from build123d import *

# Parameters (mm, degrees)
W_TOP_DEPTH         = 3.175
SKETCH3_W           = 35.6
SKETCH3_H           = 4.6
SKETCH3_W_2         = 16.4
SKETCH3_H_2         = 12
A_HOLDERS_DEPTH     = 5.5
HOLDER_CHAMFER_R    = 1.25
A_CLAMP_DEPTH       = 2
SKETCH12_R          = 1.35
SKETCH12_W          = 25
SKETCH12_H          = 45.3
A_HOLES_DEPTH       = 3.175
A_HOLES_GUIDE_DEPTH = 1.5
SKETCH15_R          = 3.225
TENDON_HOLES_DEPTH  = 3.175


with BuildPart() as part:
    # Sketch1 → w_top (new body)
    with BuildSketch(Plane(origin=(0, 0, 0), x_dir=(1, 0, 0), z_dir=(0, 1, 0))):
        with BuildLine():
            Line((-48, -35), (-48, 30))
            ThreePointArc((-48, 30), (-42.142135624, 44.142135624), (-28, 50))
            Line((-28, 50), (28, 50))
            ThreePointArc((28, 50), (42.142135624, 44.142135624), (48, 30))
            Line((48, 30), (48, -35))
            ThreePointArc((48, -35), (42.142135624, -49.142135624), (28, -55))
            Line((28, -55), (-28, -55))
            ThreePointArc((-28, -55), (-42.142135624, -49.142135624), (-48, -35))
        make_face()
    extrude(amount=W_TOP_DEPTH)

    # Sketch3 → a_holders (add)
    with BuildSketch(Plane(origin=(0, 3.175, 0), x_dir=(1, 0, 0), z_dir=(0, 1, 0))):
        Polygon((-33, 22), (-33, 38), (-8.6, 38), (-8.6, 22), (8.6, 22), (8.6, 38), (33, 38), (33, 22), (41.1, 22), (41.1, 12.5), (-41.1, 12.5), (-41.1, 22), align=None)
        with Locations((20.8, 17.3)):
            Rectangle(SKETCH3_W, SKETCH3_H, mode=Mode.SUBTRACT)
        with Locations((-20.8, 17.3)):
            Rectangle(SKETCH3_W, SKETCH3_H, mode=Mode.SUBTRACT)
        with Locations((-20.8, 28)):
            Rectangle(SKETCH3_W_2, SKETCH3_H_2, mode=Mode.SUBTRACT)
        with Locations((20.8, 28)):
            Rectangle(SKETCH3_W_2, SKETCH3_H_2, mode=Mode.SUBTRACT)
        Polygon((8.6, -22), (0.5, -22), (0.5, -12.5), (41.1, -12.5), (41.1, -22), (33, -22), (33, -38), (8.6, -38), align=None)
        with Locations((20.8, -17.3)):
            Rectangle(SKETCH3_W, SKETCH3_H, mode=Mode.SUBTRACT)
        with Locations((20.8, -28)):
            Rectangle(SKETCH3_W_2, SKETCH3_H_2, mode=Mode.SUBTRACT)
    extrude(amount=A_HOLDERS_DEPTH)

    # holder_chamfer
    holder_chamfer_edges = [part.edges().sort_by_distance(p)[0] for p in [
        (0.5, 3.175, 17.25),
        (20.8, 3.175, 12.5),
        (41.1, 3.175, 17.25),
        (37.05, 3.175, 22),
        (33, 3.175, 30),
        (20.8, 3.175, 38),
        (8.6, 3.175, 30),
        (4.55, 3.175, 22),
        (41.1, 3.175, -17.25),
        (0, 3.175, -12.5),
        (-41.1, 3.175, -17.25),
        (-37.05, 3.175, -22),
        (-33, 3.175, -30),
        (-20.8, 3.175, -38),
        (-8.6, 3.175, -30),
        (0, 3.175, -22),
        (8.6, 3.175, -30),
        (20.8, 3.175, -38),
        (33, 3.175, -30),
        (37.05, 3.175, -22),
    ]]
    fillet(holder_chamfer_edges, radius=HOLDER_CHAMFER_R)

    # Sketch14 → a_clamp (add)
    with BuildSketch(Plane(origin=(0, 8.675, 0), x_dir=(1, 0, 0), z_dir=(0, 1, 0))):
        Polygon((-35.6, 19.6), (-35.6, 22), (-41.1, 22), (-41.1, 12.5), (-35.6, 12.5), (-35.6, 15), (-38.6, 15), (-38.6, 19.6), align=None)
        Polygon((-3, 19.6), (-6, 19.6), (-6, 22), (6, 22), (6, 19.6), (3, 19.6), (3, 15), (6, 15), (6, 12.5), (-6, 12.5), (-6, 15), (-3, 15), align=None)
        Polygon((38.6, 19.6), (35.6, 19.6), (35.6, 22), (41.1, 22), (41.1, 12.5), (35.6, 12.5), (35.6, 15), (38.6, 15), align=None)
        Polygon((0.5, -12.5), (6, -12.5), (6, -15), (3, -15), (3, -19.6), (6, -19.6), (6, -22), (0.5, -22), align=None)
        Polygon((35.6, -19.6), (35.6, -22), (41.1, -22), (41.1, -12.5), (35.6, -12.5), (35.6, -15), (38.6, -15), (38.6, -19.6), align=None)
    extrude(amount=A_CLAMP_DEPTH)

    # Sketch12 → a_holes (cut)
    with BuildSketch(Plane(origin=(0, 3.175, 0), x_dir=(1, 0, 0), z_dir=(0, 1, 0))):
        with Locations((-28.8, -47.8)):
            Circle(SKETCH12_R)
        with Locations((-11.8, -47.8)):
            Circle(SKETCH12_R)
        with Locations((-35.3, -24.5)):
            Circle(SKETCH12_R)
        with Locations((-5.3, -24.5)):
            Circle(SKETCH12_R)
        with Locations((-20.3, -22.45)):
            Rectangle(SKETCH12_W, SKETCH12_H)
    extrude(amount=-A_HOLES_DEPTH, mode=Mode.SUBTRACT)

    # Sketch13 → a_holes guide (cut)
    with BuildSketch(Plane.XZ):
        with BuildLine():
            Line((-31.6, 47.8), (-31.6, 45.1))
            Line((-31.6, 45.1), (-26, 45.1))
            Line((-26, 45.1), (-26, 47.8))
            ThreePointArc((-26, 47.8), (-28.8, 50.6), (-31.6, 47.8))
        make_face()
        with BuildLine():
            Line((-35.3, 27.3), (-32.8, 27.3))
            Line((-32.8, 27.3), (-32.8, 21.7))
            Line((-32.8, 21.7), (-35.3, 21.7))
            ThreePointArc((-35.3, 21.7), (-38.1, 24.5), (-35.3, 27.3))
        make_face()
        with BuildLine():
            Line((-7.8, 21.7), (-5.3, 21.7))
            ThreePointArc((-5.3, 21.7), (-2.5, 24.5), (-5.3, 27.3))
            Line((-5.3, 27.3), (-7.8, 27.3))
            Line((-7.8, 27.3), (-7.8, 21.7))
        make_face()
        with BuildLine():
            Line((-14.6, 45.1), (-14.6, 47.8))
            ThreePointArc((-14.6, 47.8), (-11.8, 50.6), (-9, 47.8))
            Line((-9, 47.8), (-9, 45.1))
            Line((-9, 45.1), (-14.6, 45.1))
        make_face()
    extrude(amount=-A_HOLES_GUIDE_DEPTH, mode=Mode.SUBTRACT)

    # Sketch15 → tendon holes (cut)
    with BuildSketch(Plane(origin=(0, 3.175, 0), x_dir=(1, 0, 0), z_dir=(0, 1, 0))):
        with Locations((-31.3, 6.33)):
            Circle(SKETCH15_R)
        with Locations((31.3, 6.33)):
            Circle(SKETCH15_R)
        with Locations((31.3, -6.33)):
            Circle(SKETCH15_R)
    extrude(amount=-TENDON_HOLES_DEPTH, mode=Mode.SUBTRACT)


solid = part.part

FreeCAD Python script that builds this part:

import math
import FreeCAD as App
import Part
import Sketcher

V = App.Vector


def edges_at(feature, points):
    """Names of the edges that pass closest to the given points."""
    edges = feature.Shape.Edges
    near = lambda p: min(range(len(edges)), key=lambda i: edges[i].distToShape(Part.Vertex(*p))[0])
    return sorted({f"Edge{near(p) + 1}" for p in points})

doc = App.newDocument("Part")
body = doc.addObject("PartDesign::Body", "Body")

# Sketch on XZ plane
sketch1 = body.newObject("Sketcher::SketchObject", "Sketch")
sketch1.AttachmentSupport = (doc.getObject("XZ_Plane"), [""])
sketch1.MapMode = "FlatFace"
sketch1.addGeometry([
    Part.LineSegment(V(-48, -30, 0), V(-48, 35, 0)),  # 0
    Part.ArcOfCircle(Part.Circle(V(-28, 35, 0), V(0, 0, 1), 20), math.radians(90), math.radians(180)),  # 1
    Part.LineSegment(V(-28, 55, 0), V(28, 55, 0)),  # 2
    Part.ArcOfCircle(Part.Circle(V(28, 35, 0), V(0, 0, 1), 20), math.radians(0), math.radians(90)),  # 3
    Part.LineSegment(V(48, 35, 0), V(48, -30, 0)),  # 4
    Part.ArcOfCircle(Part.Circle(V(28, -30, 0), V(0, 0, 1), 20), math.radians(-90), math.radians(0)),  # 5
    Part.LineSegment(V(28, -50, 0), V(-28, -50, 0)),  # 6
    Part.ArcOfCircle(Part.Circle(V(-28, -30, 0), V(0, 0, 1), 20), math.radians(180), math.radians(270)),  # 7
], False)
sketch1.addConstraint([
    Sketcher.Constraint("Tangent", 0, 2, 1, 2),
    Sketcher.Constraint("Tangent", 1, 1, 2, 1),
    Sketcher.Constraint("Tangent", 2, 2, 3, 2),
    Sketcher.Constraint("Tangent", 3, 1, 4, 1),
    Sketcher.Constraint("Tangent", 4, 2, 5, 2),
    Sketcher.Constraint("Tangent", 5, 1, 6, 1),
    Sketcher.Constraint("Tangent", 6, 2, 7, 2),
    Sketcher.Constraint("Tangent", 7, 1, 0, 1),
    Sketcher.Constraint("Vertical", 0),
    Sketcher.Constraint("Horizontal", 2),
    Sketcher.Constraint("Vertical", 4),
    Sketcher.Constraint("Horizontal", 6),
    Sketcher.Constraint("Equal", 1, 3),
    Sketcher.Constraint("Equal", 3, 5),
    Sketcher.Constraint("Equal", 5, 7),
    Sketcher.Constraint("Radius", 1, 20.0),
    Sketcher.Constraint("DistanceX", 2, 1, 2, 2, 56.0),
    Sketcher.Constraint("DistanceY", 0, 1, 0, 2, 65.0),
    Sketcher.Constraint("DistanceX", 1, 3, -1, 1, 28.0),
    Sketcher.Constraint("DistanceY", -1, 1, 1, 3, 35.0),
])
pad1 = body.newObject("PartDesign::Pad", "Pad")
pad1.Profile = sketch1
pad1.Length = 3.175
pad1.Reversed = True

# Sketch on XZ plane
sketch2 = body.newObject("Sketcher::SketchObject", "Sketch001")
sketch2.AttachmentSupport = (doc.getObject("XZ_Plane"), [""])
sketch2.MapMode = "FlatFace"
sketch2.AttachmentOffset = App.Placement(V(0, 0, -3.175), App.Rotation())
sketch2.addGeometry([
    Part.LineSegment(V(-33, -38, 0), V(-33, -22, 0)),  # 0
    Part.LineSegment(V(-33, -22, 0), V(-41.1, -22, 0)),  # 1
    Part.LineSegment(V(-41.1, -22, 0), V(-41.1, -12.5, 0)),  # 2
    Part.LineSegment(V(-41.1, -12.5, 0), V(41.1, -12.5, 0)),  # 3
    Part.LineSegment(V(41.1, -12.5, 0), V(41.1, -22, 0)),  # 4
    Part.LineSegment(V(41.1, -22, 0), V(33, -22, 0)),  # 5
    Part.LineSegment(V(33, -22, 0), V(33, -38, 0)),  # 6
    Part.LineSegment(V(33, -38, 0), V(8.6, -38, 0)),  # 7
    Part.LineSegment(V(8.6, -38, 0), V(8.6, -22, 0)),  # 8
    Part.LineSegment(V(8.6, -22, 0), V(-8.6, -22, 0)),  # 9
    Part.LineSegment(V(-8.6, -22, 0), V(-8.6, -38, 0)),  # 10
    Part.LineSegment(V(-8.6, -38, 0), V(-33, -38, 0)),  # 11
    Part.LineSegment(V(3, -15, 0), V(3, -19.6, 0)),  # 12
    Part.LineSegment(V(3, -19.6, 0), V(38.6, -19.6, 0)),  # 13
    Part.LineSegment(V(38.6, -19.6, 0), V(38.6, -15, 0)),  # 14
    Part.LineSegment(V(38.6, -15, 0), V(3, -15, 0)),  # 15
    Part.LineSegment(V(-38.6, -15, 0), V(-38.6, -19.6, 0)),  # 16
    Part.LineSegment(V(-38.6, -19.6, 0), V(-3, -19.6, 0)),  # 17
    Part.LineSegment(V(-3, -19.6, 0), V(-3, -15, 0)),  # 18
    Part.LineSegment(V(-3, -15, 0), V(-38.6, -15, 0)),  # 19
    Part.LineSegment(V(12.6, -22, 0), V(12.6, -34, 0)),  # 20
    Part.LineSegment(V(12.6, -34, 0), V(29, -34, 0)),  # 21
    Part.LineSegment(V(29, -34, 0), V(29, -22, 0)),  # 22
    Part.LineSegment(V(29, -22, 0), V(12.6, -22, 0)),  # 23
    Part.LineSegment(V(-29, -22, 0), V(-29, -34, 0)),  # 24
    Part.LineSegment(V(-29, -34, 0), V(-12.6, -34, 0)),  # 25
    Part.LineSegment(V(-12.6, -34, 0), V(-12.6, -22, 0)),  # 26
    Part.LineSegment(V(-12.6, -22, 0), V(-29, -22, 0)),  # 27
    Part.LineSegment(V(0.5, 22, 0), V(8.6, 22, 0)),  # 28
    Part.LineSegment(V(8.6, 22, 0), V(8.6, 38, 0)),  # 29
    Part.LineSegment(V(8.6, 38, 0), V(33, 38, 0)),  # 30
    Part.LineSegment(V(33, 38, 0), V(33, 22, 0)),  # 31
    Part.LineSegment(V(33, 22, 0), V(41.1, 22, 0)),  # 32
    Part.LineSegment(V(41.1, 22, 0), V(41.1, 12.5, 0)),  # 33
    Part.LineSegment(V(41.1, 12.5, 0), V(0.5, 12.5, 0)),  # 34
    Part.LineSegment(V(0.5, 12.5, 0), V(0.5, 22, 0)),  # 35
    Part.LineSegment(V(12.6, 34, 0), V(12.6, 22, 0)),  # 36
    Part.LineSegment(V(12.6, 22, 0), V(29, 22, 0)),  # 37
    Part.LineSegment(V(29, 22, 0), V(29, 34, 0)),  # 38
    Part.LineSegment(V(29, 34, 0), V(12.6, 34, 0)),  # 39
    Part.LineSegment(V(3, 19.6, 0), V(3, 15, 0)),  # 40
    Part.LineSegment(V(3, 15, 0), V(38.6, 15, 0)),  # 41
    Part.LineSegment(V(38.6, 15, 0), V(38.6, 19.6, 0)),  # 42
    Part.LineSegment(V(38.6, 19.6, 0), V(3, 19.6, 0)),  # 43
], False)
sketch2.addConstraint([
    Sketcher.Constraint("Coincident", 0, 2, 1, 1),
    Sketcher.Constraint("Coincident", 1, 2, 2, 1),
    Sketcher.Constraint("Coincident", 2, 2, 3, 1),
    Sketcher.Constraint("Coincident", 3, 2, 4, 1),
    Sketcher.Constraint("Coincident", 4, 2, 5, 1),
    Sketcher.Constraint("Coincident", 5, 2, 6, 1),
    Sketcher.Constraint("Coincident", 6, 2, 7, 1),
    Sketcher.Constraint("Coincident", 7, 2, 8, 1),
    Sketcher.Constraint("Coincident", 8, 2, 9, 1),
    Sketcher.Constraint("Coincident", 9, 2, 10, 1),
    Sketcher.Constraint("Coincident", 10, 2, 11, 1),
    Sketcher.Constraint("Coincident", 11, 2, 0, 1),
    Sketcher.Constraint("Coincident", 12, 2, 13, 1),
    Sketcher.Constraint("Coincident", 13, 2, 14, 1),
    Sketcher.Constraint("Coincident", 14, 2, 15, 1),
    Sketcher.Constraint("Coincident", 15, 2, 12, 1),
    Sketcher.Constraint("Coincident", 16, 2, 17, 1),
    Sketcher.Constraint("Coincident", 17, 2, 18, 1),
    Sketcher.Constraint("Coincident", 18, 2, 19, 1),
    Sketcher.Constraint("Coincident", 19, 2, 16, 1),
    Sketcher.Constraint("Coincident", 20, 2, 21, 1),
    Sketcher.Constraint("Coincident", 21, 2, 22, 1),
    Sketcher.Constraint("Coincident", 22, 2, 23, 1),
    Sketcher.Constraint("Coincident", 23, 2, 20, 1),
    Sketcher.Constraint("Coincident", 24, 2, 25, 1),
    Sketcher.Constraint("Coincident", 25, 2, 26, 1),
    Sketcher.Constraint("Coincident", 26, 2, 27, 1),
    Sketcher.Constraint("Coincident", 27, 2, 24, 1),
    Sketcher.Constraint("Coincident", 28, 2, 29, 1),
    Sketcher.Constraint("Coincident", 29, 2, 30, 1),
    Sketcher.Constraint("Coincident", 30, 2, 31, 1),
    Sketcher.Constraint("Coincident", 31, 2, 32, 1),
    Sketcher.Constraint("Coincident", 32, 2, 33, 1),
    Sketcher.Constraint("Coincident", 33, 2, 34, 1),
    Sketcher.Constraint("Coincident", 34, 2, 35, 1),
    Sketcher.Constraint("Coincident", 35, 2, 28, 1),
    Sketcher.Constraint("Coincident", 36, 2, 37, 1),
    Sketcher.Constraint("Coincident", 37, 2, 38, 1),
    Sketcher.Constraint("Coincident", 38, 2, 39, 1),
    Sketcher.Constraint("Coincident", 39, 2, 36, 1),
    Sketcher.Constraint("Coincident", 40, 2, 41, 1),
    Sketcher.Constraint("Coincident", 41, 2, 42, 1),
    Sketcher.Constraint("Coincident", 42, 2, 43, 1),
    Sketcher.Constraint("Coincident", 43, 2, 40, 1),
    Sketcher.Constraint("Vertical", 0),
    Sketcher.Constraint("Horizontal", 1),
    Sketcher.Constraint("Vertical", 2),
    Sketcher.Constraint("Horizontal", 3),
    Sketcher.Constraint("Vertical", 4),
    Sketcher.Constraint("Horizontal", 5),
    Sketcher.Constraint("Vertical", 6),
    Sketcher.Constraint("Horizontal", 7),
    Sketcher.Constraint("Vertical", 8),
    Sketcher.Constraint("Horizontal", 9),
    Sketcher.Constraint("Vertical", 10),
    Sketcher.Constraint("Horizontal", 11),
    Sketcher.Constraint("Vertical", 12),
    Sketcher.Constraint("Horizontal", 13),
    Sketcher.Constraint("Vertical", 14),
    Sketcher.Constraint("Horizontal", 15),
    Sketcher.Constraint("Vertical", 16),
    Sketcher.Constraint("Horizontal", 17),
    Sketcher.Constraint("Vertical", 18),
    Sketcher.Constraint("Horizontal", 19),
    Sketcher.Constraint("Vertical", 20),
    Sketcher.Constraint("Horizontal", 21),
    Sketcher.Constraint("Vertical", 22),
    Sketcher.Constraint("Horizontal", 23),
    Sketcher.Constraint("Vertical", 24),
    Sketcher.Constraint("Horizontal", 25),
    Sketcher.Constraint("Vertical", 26),
    Sketcher.Constraint("Horizontal", 27),
    Sketcher.Constraint("Horizontal", 28),
    Sketcher.Constraint("Vertical", 29),
    Sketcher.Constraint("Horizontal", 30),
    Sketcher.Constraint("Vertical", 31),
    Sketcher.Constraint("Horizontal", 32),
    Sketcher.Constraint("Vertical", 33),
    Sketcher.Constraint("Horizontal", 34),
    Sketcher.Constraint("Vertical", 35),
    Sketcher.Constraint("Vertical", 36),
    Sketcher.Constraint("Horizontal", 37),
    Sketcher.Constraint("Vertical", 38),
    Sketcher.Constraint("Horizontal", 39),
    Sketcher.Constraint("Vertical", 40),
    Sketcher.Constraint("Horizontal", 41),
    Sketcher.Constraint("Vertical", 42),
    Sketcher.Constraint("Horizontal", 43),
    Sketcher.Constraint("Symmetric", 9, 2, 28, 2, -1, 1),
    Sketcher.Constraint("Symmetric", 11, 2, 30, 2, -1, 1),
    Sketcher.Constraint("Symmetric", 1, 2, 32, 2, -1, 1),
    Sketcher.Constraint("Symmetric", 26, 2, 36, 2, -1, 1),
    Sketcher.Constraint("Symmetric", 24, 2, 38, 2, -1, 1),
    Sketcher.Constraint("Symmetric", 18, 2, 40, 2, -1, 1),
    Sketcher.Constraint("Symmetric", 16, 2, 42, 2, -1, 1),
    Sketcher.Constraint("Symmetric", 1, 2, 4, 2, -2),
    Sketcher.Constraint("Symmetric", 7, 2, 10, 2, -2),
    Sketcher.Constraint("Symmetric", 13, 2, 16, 2, -2),
    Sketcher.Constraint("Symmetric", 15, 2, 18, 2, -2),
    Sketcher.Constraint("Symmetric", 21, 2, 24, 2, -2),
    Sketcher.Constraint("Symmetric", 23, 2, 26, 2, -2),
    Sketcher.Constraint("Horizontal", 5, 2, 8, 2),
    Sketcher.Constraint("Horizontal", 9, 2, 22, 2),
    Sketcher.Constraint("Vertical", 6, 2, 30, 2),
    Sketcher.Constraint("Equal", 5, 28),
    Sketcher.Constraint("Equal", 4, 33),
    Sketcher.Constraint("DistanceY", 0, 1, 0, 2, 16.0),
    Sketcher.Constraint("DistanceY", 20, 2, 20, 1, 12.0),
    Sketcher.Constraint("DistanceX", 1, 2, 1, 1, 8.1),
    Sketcher.Constraint("DistanceX", 3, 1, 3, 2, 82.2),
    Sketcher.Constraint("DistanceX", 7, 2, 7, 1, 24.4),
    Sketcher.Constraint("DistanceX", 13, 1, 13, 2, 35.6),
    Sketcher.Constraint("DistanceX", 21, 1, 21, 2, 16.4),
    Sketcher.Constraint("DistanceY", 2, 1, 2, 2, 9.5),
    Sketcher.Constraint("DistanceY", 12, 2, 12, 1, 4.6),
    Sketcher.Constraint("DistanceY", 0, 2, -1, 1, 22.0),
    Sketcher.Constraint("DistanceX", -1, 1, 12, 2, 3.0),
    Sketcher.Constraint("DistanceY", 14, 2, -1, 1, 15.0),
    Sketcher.Constraint("DistanceX", -1, 1, 21, 2, 29.0),
])
pad2 = body.newObject("PartDesign::Pad", "Pad001")
pad2.Profile = sketch2
pad2.Length = 5.5
pad2.Reversed = True
doc.recompute()

fillet = body.newObject("PartDesign::Fillet", "Fillet")
fillet.Base = (pad2, edges_at(pad2, [
    (0.5, 3.175, 17.25),
    (20.8, 3.175, 12.5),
    (41.1, 3.175, 17.25),
    (37.05, 3.175, 22),
    (33, 3.175, 30),
    (20.8, 3.175, 38),
    (8.6, 3.175, 30),
    (4.55, 3.175, 22),
    (41.1, 3.175, -17.25),
    (0, 3.175, -12.5),
    (-41.1, 3.175, -17.25),
    (-37.05, 3.175, -22),
    (-33, 3.175, -30),
    (-20.8, 3.175, -38),
    (-8.6, 3.175, -30),
    (0, 3.175, -22),
    (8.6, 3.175, -30),
    (20.8, 3.175, -38),
    (33, 3.175, -30),
    (37.05, 3.175, -22),
]))
fillet.Radius = 1.25

# Sketch on XZ plane
sketch3 = body.newObject("Sketcher::SketchObject", "Sketch002")
sketch3.AttachmentSupport = (doc.getObject("XZ_Plane"), [""])
sketch3.MapMode = "FlatFace"
sketch3.AttachmentOffset = App.Placement(V(0, 0, -8.675), App.Rotation())
sketch3.addGeometry([
    Part.LineSegment(V(-35.6, -19.6, 0), V(-35.6, -22, 0)),  # 0
    Part.LineSegment(V(-35.6, -22, 0), V(-41.1, -22, 0)),  # 1
    Part.LineSegment(V(-41.1, -22, 0), V(-41.1, -12.5, 0)),  # 2
    Part.LineSegment(V(-41.1, -12.5, 0), V(-35.6, -12.5, 0)),  # 3
    Part.LineSegment(V(-35.6, -12.5, 0), V(-35.6, -15, 0)),  # 4
    Part.LineSegment(V(-35.6, -15, 0), V(-38.6, -15, 0)),  # 5
    Part.LineSegment(V(-38.6, -15, 0), V(-38.6, -19.6, 0)),  # 6
    Part.LineSegment(V(-38.6, -19.6, 0), V(-35.6, -19.6, 0)),  # 7
    Part.LineSegment(V(-6, -19.6, 0), V(-3, -19.6, 0)),  # 8
    Part.LineSegment(V(-3, -19.6, 0), V(-3, -15, 0)),  # 9
    Part.LineSegment(V(-3, -15, 0), V(-6, -15, 0)),  # 10
    Part.LineSegment(V(-6, -15, 0), V(-6, -12.5, 0)),  # 11
    Part.LineSegment(V(-6, -12.5, 0), V(6, -12.5, 0)),  # 12
    Part.LineSegment(V(6, -12.5, 0), V(6, -15, 0)),  # 13
    Part.LineSegment(V(6, -15, 0), V(3, -15, 0)),  # 14
    Part.LineSegment(V(3, -15, 0), V(3, -19.6, 0)),  # 15
    Part.LineSegment(V(3, -19.6, 0), V(6, -19.6, 0)),  # 16
    Part.LineSegment(V(6, -19.6, 0), V(6, -22, 0)),  # 17
    Part.LineSegment(V(6, -22, 0), V(-6, -22, 0)),  # 18
    Part.LineSegment(V(-6, -22, 0), V(-6, -19.6, 0)),  # 19
    Part.LineSegment(V(35.6, -19.6, 0), V(38.6, -19.6, 0)),  # 20
    Part.LineSegment(V(38.6, -19.6, 0), V(38.6, -15, 0)),  # 21
    Part.LineSegment(V(38.6, -15, 0), V(35.6, -15, 0)),  # 22
    Part.LineSegment(V(35.6, -15, 0), V(35.6, -12.5, 0)),  # 23
    Part.LineSegment(V(35.6, -12.5, 0), V(41.1, -12.5, 0)),  # 24
    Part.LineSegment(V(41.1, -12.5, 0), V(41.1, -22, 0)),  # 25
    Part.LineSegment(V(41.1, -22, 0), V(35.6, -22, 0)),  # 26
    Part.LineSegment(V(35.6, -22, 0), V(35.6, -19.6, 0)),  # 27
    Part.LineSegment(V(6, 12.5, 0), V(0.5, 12.5, 0)),  # 28
    Part.LineSegment(V(0.5, 12.5, 0), V(0.5, 22, 0)),  # 29
    Part.LineSegment(V(0.5, 22, 0), V(6, 22, 0)),  # 30
    Part.LineSegment(V(6, 22, 0), V(6, 19.6, 0)),  # 31
    Part.LineSegment(V(6, 19.6, 0), V(3, 19.6, 0)),  # 32
    Part.LineSegment(V(3, 19.6, 0), V(3, 15, 0)),  # 33
    Part.LineSegment(V(3, 15, 0), V(6, 15, 0)),  # 34
    Part.LineSegment(V(6, 15, 0), V(6, 12.5, 0)),  # 35
    Part.LineSegment(V(35.6, 19.6, 0), V(35.6, 22, 0)),  # 36
    Part.LineSegment(V(35.6, 22, 0), V(41.1, 22, 0)),  # 37
    Part.LineSegment(V(41.1, 22, 0), V(41.1, 12.5, 0)),  # 38
    Part.LineSegment(V(41.1, 12.5, 0), V(35.6, 12.5, 0)),  # 39
    Part.LineSegment(V(35.6, 12.5, 0), V(35.6, 15, 0)),  # 40
    Part.LineSegment(V(35.6, 15, 0), V(38.6, 15, 0)),  # 41
    Part.LineSegment(V(38.6, 15, 0), V(38.6, 19.6, 0)),  # 42
    Part.LineSegment(V(38.6, 19.6, 0), V(35.6, 19.6, 0)),  # 43
], False)
sketch3.addConstraint([
    Sketcher.Constraint("Coincident", 0, 2, 1, 1),
    Sketcher.Constraint("Coincident", 1, 2, 2, 1),
    Sketcher.Constraint("Coincident", 2, 2, 3, 1),
    Sketcher.Constraint("Coincident", 3, 2, 4, 1),
    Sketcher.Constraint("Coincident", 4, 2, 5, 1),
    Sketcher.Constraint("Coincident", 5, 2, 6, 1),
    Sketcher.Constraint("Coincident", 6, 2, 7, 1),
    Sketcher.Constraint("Coincident", 7, 2, 0, 1),
    Sketcher.Constraint("Coincident", 8, 2, 9, 1),
    Sketcher.Constraint("Coincident", 9, 2, 10, 1),
    Sketcher.Constraint("Coincident", 10, 2, 11, 1),
    Sketcher.Constraint("Coincident", 11, 2, 12, 1),
    Sketcher.Constraint("Coincident", 12, 2, 13, 1),
    Sketcher.Constraint("Coincident", 13, 2, 14, 1),
    Sketcher.Constraint("Coincident", 14, 2, 15, 1),
    Sketcher.Constraint("Coincident", 15, 2, 16, 1),
    Sketcher.Constraint("Coincident", 16, 2, 17, 1),
    Sketcher.Constraint("Coincident", 17, 2, 18, 1),
    Sketcher.Constraint("Coincident", 18, 2, 19, 1),
    Sketcher.Constraint("Coincident", 19, 2, 8, 1),
    Sketcher.Constraint("Coincident", 20, 2, 21, 1),
    Sketcher.Constraint("Coincident", 21, 2, 22, 1),
    Sketcher.Constraint("Coincident", 22, 2, 23, 1),
    Sketcher.Constraint("Coincident", 23, 2, 24, 1),
    Sketcher.Constraint("Coincident", 24, 2, 25, 1),
    Sketcher.Constraint("Coincident", 25, 2, 26, 1),
    Sketcher.Constraint("Coincident", 26, 2, 27, 1),
    Sketcher.Constraint("Coincident", 27, 2, 20, 1),
    Sketcher.Constraint("Coincident", 28, 2, 29, 1),
    Sketcher.Constraint("Coincident", 29, 2, 30, 1),
    Sketcher.Constraint("Coincident", 30, 2, 31, 1),
    Sketcher.Constraint("Coincident", 31, 2, 32, 1),
    Sketcher.Constraint("Coincident", 32, 2, 33, 1),
    Sketcher.Constraint("Coincident", 33, 2, 34, 1),
    Sketcher.Constraint("Coincident", 34, 2, 35, 1),
    Sketcher.Constraint("Coincident", 35, 2, 28, 1),
    Sketcher.Constraint("Coincident", 36, 2, 37, 1),
    Sketcher.Constraint("Coincident", 37, 2, 38, 1),
    Sketcher.Constraint("Coincident", 38, 2, 39, 1),
    Sketcher.Constraint("Coincident", 39, 2, 40, 1),
    Sketcher.Constraint("Coincident", 40, 2, 41, 1),
    Sketcher.Constraint("Coincident", 41, 2, 42, 1),
    Sketcher.Constraint("Coincident", 42, 2, 43, 1),
    Sketcher.Constraint("Coincident", 43, 2, 36, 1),
    Sketcher.Constraint("Vertical", 0),
    Sketcher.Constraint("Horizontal", 1),
    Sketcher.Constraint("Vertical", 2),
    Sketcher.Constraint("Horizontal", 3),
    Sketcher.Constraint("Vertical", 4),
    Sketcher.Constraint("Horizontal", 5),
    Sketcher.Constraint("Vertical", 6),
    Sketcher.Constraint("Horizontal", 7),
    Sketcher.Constraint("Horizontal", 8),
    Sketcher.Constraint("Vertical", 9),
    Sketcher.Constraint("Horizontal", 10),
    Sketcher.Constraint("Vertical", 11),
    Sketcher.Constraint("Horizontal", 12),
    Sketcher.Constraint("Vertical", 13),
    Sketcher.Constraint("Horizontal", 14),
    Sketcher.Constraint("Vertical", 15),
    Sketcher.Constraint("Horizontal", 16),
    Sketcher.Constraint("Vertical", 17),
    Sketcher.Constraint("Horizontal", 18),
    Sketcher.Constraint("Vertical", 19),
    Sketcher.Constraint("Horizontal", 20),
    Sketcher.Constraint("Vertical", 21),
    Sketcher.Constraint("Horizontal", 22),
    Sketcher.Constraint("Vertical", 23),
    Sketcher.Constraint("Horizontal", 24),
    Sketcher.Constraint("Vertical", 25),
    Sketcher.Constraint("Horizontal", 26),
    Sketcher.Constraint("Vertical", 27),
    Sketcher.Constraint("Horizontal", 28),
    Sketcher.Constraint("Vertical", 29),
    Sketcher.Constraint("Horizontal", 30),
    Sketcher.Constraint("Vertical", 31),
    Sketcher.Constraint("Horizontal", 32),
    Sketcher.Constraint("Vertical", 33),
    Sketcher.Constraint("Horizontal", 34),
    Sketcher.Constraint("Vertical", 35),
    Sketcher.Constraint("Vertical", 36),
    Sketcher.Constraint("Horizontal", 37),
    Sketcher.Constraint("Vertical", 38),
    Sketcher.Constraint("Horizontal", 39),
    Sketcher.Constraint("Vertical", 40),
    Sketcher.Constraint("Horizontal", 41),
    Sketcher.Constraint("Vertical", 42),
    Sketcher.Constraint("Horizontal", 43),
    Sketcher.Constraint("Symmetric", 18, 2, 30, 2, -1, 1),
    Sketcher.Constraint("Symmetric", 8, 2, 32, 2, -1, 1),
    Sketcher.Constraint("Symmetric", 10, 2, 34, 2, -1, 1),
    Sketcher.Constraint("Symmetric", 0, 2, 36, 2, -1, 1),
    Sketcher.Constraint("Symmetric", 2, 2, 38, 2, -1, 1),
    Sketcher.Constraint("Symmetric", 4, 2, 40, 2, -1, 1),
    Sketcher.Constraint("Symmetric", 6, 2, 42, 2, -1, 1),
    Sketcher.Constraint("Symmetric", 10, 2, 13, 2, -2),
    Sketcher.Constraint("Symmetric", 8, 2, 15, 2, -2),
    Sketcher.Constraint("Symmetric", 6, 2, 20, 2, -2),
    Sketcher.Constraint("Symmetric", 4, 2, 22, 2, -2),
    Sketcher.Constraint("Symmetric", 2, 2, 24, 2, -2),
    Sketcher.Constraint("Symmetric", 0, 2, 26, 2, -2),
    Sketcher.Constraint("Horizontal", 7, 2, 8, 2),
    Sketcher.Constraint("Horizontal", 5, 2, 9, 2),
    Sketcher.Constraint("Horizontal", 3, 2, 11, 2),
    Sketcher.Constraint("Horizontal", 1, 2, 17, 2),
    Sketcher.Constraint("Horizontal", 35, 2, 38, 2),
    Sketcher.Constraint("Vertical", 0, 2, 3, 2),
    Sketcher.Constraint("Vertical", 13, 2, 16, 2),
    Sketcher.Constraint("Vertical", 11, 2, 18, 2),
    Sketcher.Constraint("Equal", 7, 8),
    Sketcher.Constraint("Equal", 26, 28),
    Sketcher.Constraint("DistanceX", 5, 2, 5, 1, 3.0),
    Sketcher.Constraint("DistanceX", 12, 1, 12, 2, 12.0),
    Sketcher.Constraint("DistanceX", 1, 2, 1, 1, 5.5),
    Sketcher.Constraint("DistanceY", 0, 2, 0, 1, 2.4),
    Sketcher.Constraint("DistanceY", 2, 1, 2, 2, 9.5),
    Sketcher.Constraint("DistanceY", 4, 2, 4, 1, 2.5),
    Sketcher.Constraint("DistanceY", 0, 2, -1, 1, 22.0),
    Sketcher.Constraint("DistanceX", 0, 2, -1, 1, 35.6),
])
pad3 = body.newObject("PartDesign::Pad", "Pad002")
pad3.Profile = sketch3
pad3.Length = 2
pad3.Reversed = True

# Sketch on XZ plane
sketch4 = body.newObject("Sketcher::SketchObject", "Sketch003")
sketch4.AttachmentSupport = (doc.getObject("XZ_Plane"), [""])
sketch4.MapMode = "FlatFace"
sketch4.AttachmentOffset = App.Placement(V(0, 0, -3.175), App.Rotation())
sketch4.addGeometry([
    Part.Circle(V(-28.8, 47.8, 0), V(0, 0, 1), 1.35),  # 0
    Part.Circle(V(-11.8, 47.8, 0), V(0, 0, 1), 1.35),  # 1
    Part.Circle(V(-35.3, 24.5, 0), V(0, 0, 1), 1.35),  # 2
    Part.Circle(V(-5.3, 24.5, 0), V(0, 0, 1), 1.35),  # 3
    Part.LineSegment(V(-32.8, -0.2, 0), V(-32.8, 45.1, 0)),  # 4
    Part.LineSegment(V(-32.8, 45.1, 0), V(-7.8, 45.1, 0)),  # 5
    Part.LineSegment(V(-7.8, 45.1, 0), V(-7.8, -0.2, 0)),  # 6
    Part.LineSegment(V(-7.8, -0.2, 0), V(-32.8, -0.2, 0)),  # 7
], False)
sketch4.addConstraint([
    Sketcher.Constraint("Coincident", 4, 2, 5, 1),
    Sketcher.Constraint("Coincident", 5, 2, 6, 1),
    Sketcher.Constraint("Coincident", 6, 2, 7, 1),
    Sketcher.Constraint("Coincident", 7, 2, 4, 1),
    Sketcher.Constraint("Vertical", 4),
    Sketcher.Constraint("Horizontal", 5),
    Sketcher.Constraint("Vertical", 6),
    Sketcher.Constraint("Horizontal", 7),
    Sketcher.Constraint("Equal", 0, 1),
    Sketcher.Constraint("Equal", 1, 2),
    Sketcher.Constraint("Equal", 2, 3),
    Sketcher.Constraint("Horizontal", 0, 3, 1, 3),
    Sketcher.Constraint("Horizontal", 2, 3, 3, 3),
    Sketcher.Constraint("Diameter", 0, 2.7),
    Sketcher.Constraint("DistanceX", 5, 1, 5, 2, 25.0),
    Sketcher.Constraint("DistanceY", 4, 1, 4, 2, 45.3),
    Sketcher.Constraint("DistanceX", 0, 3, 1, 3, 17.0),
    Sketcher.Constraint("DistanceX", 2, 3, 3, 3, 30.0),
    Sketcher.Constraint("DistanceX", 4, 2, 0, 3, 4.0),
    Sketcher.Constraint("DistanceY", 6, 2, 1, 3, 48.0),
    Sketcher.Constraint("DistanceX", 0, 3, -1, 1, 28.8),
    Sketcher.Constraint("DistanceY", -1, 1, 0, 3, 47.8),
    Sketcher.Constraint("DistanceX", 2, 3, -1, 1, 35.3),
    Sketcher.Constraint("DistanceY", -1, 1, 2, 3, 24.5),
])
pocket1 = body.newObject("PartDesign::Pocket", "Pocket")
pocket1.Profile = sketch4
pocket1.Length = 3.175
pocket1.Reversed = True

# Sketch on XZ plane
sketch5 = body.newObject("Sketcher::SketchObject", "Sketch004")
sketch5.AttachmentSupport = (doc.getObject("XZ_Plane"), [""])
sketch5.MapMode = "FlatFace"
sketch5.addGeometry([
    Part.LineSegment(V(-31.6, 47.8, 0), V(-31.6, 45.1, 0)),  # 0
    Part.LineSegment(V(-31.6, 45.1, 0), V(-26, 45.1, 0)),  # 1
    Part.LineSegment(V(-26, 45.1, 0), V(-26, 47.8, 0)),  # 2
    Part.ArcOfCircle(Part.Circle(V(-28.8, 47.8, 0), V(0, 0, 1), 2.8), math.radians(0), math.radians(180)),  # 3
    Part.LineSegment(V(-32.8, 27.3, 0), V(-35.3, 27.3, 0)),  # 4
    Part.ArcOfCircle(Part.Circle(V(-35.3, 24.5, 0), V(0, 0, 1), 2.8), math.radians(90), math.radians(270)),  # 5
    Part.LineSegment(V(-35.3, 21.7, 0), V(-32.8, 21.7, 0)),  # 6
    Part.LineSegment(V(-32.8, 21.7, 0), V(-32.8, 27.3, 0)),  # 7
    Part.LineSegment(V(-7.8, 21.7, 0), V(-5.3, 21.7, 0)),  # 8
    Part.ArcOfCircle(Part.Circle(V(-5.3, 24.5, 0), V(0, 0, 1), 2.8), math.radians(-90), math.radians(90)),  # 9
    Part.LineSegment(V(-5.3, 27.3, 0), V(-7.8, 27.3, 0)),  # 10
    Part.LineSegment(V(-7.8, 27.3, 0), V(-7.8, 21.7, 0)),  # 11
    Part.LineSegment(V(-14.6, 47.8, 0), V(-14.6, 45.1, 0)),  # 12
    Part.LineSegment(V(-14.6, 45.1, 0), V(-9, 45.1, 0)),  # 13
    Part.LineSegment(V(-9, 45.1, 0), V(-9, 47.8, 0)),  # 14
    Part.ArcOfCircle(Part.Circle(V(-11.8, 47.8, 0), V(0, 0, 1), 2.8), math.radians(0), math.radians(180)),  # 15
], False)
sketch5.addConstraint([
    Sketcher.Constraint("Coincident", 0, 2, 1, 1),
    Sketcher.Constraint("Coincident", 1, 2, 2, 1),
    Sketcher.Constraint("Tangent", 2, 2, 3, 1),
    Sketcher.Constraint("Tangent", 3, 2, 0, 1),
    Sketcher.Constraint("Tangent", 4, 2, 5, 1),
    Sketcher.Constraint("Tangent", 5, 2, 6, 1),
    Sketcher.Constraint("Coincident", 6, 2, 7, 1),
    Sketcher.Constraint("Coincident", 7, 2, 4, 1),
    Sketcher.Constraint("Tangent", 8, 2, 9, 1),
    Sketcher.Constraint("Tangent", 9, 2, 10, 1),
    Sketcher.Constraint("Coincident", 10, 2, 11, 1),
    Sketcher.Constraint("Coincident", 11, 2, 8, 1),
    Sketcher.Constraint("Coincident", 12, 2, 13, 1),
    Sketcher.Constraint("Coincident", 13, 2, 14, 1),
    Sketcher.Constraint("Tangent", 14, 2, 15, 1),
    Sketcher.Constraint("Tangent", 15, 2, 12, 1),
    Sketcher.Constraint("Vertical", 0),
    Sketcher.Constraint("Horizontal", 1),
    Sketcher.Constraint("Vertical", 2),
    Sketcher.Constraint("Horizontal", 4),
    Sketcher.Constraint("Horizontal", 6),
    Sketcher.Constraint("Vertical", 7),
    Sketcher.Constraint("Horizontal", 8),
    Sketcher.Constraint("Horizontal", 10),
    Sketcher.Constraint("Vertical", 11),
    Sketcher.Constraint("Vertical", 12),
    Sketcher.Constraint("Horizontal", 13),
    Sketcher.Constraint("Vertical", 14),
    Sketcher.Constraint("Equal", 3, 5),
    Sketcher.Constraint("Equal", 5, 9),
    Sketcher.Constraint("Equal", 9, 15),
    Sketcher.Constraint("Horizontal", 5, 3, 9, 3),
    Sketcher.Constraint("Horizontal", 3, 3, 15, 3),
    Sketcher.Constraint("Horizontal", 1, 2, 12, 2),
    Sketcher.Constraint("Equal", 6, 8),
    Sketcher.Constraint("Radius", 3, 2.8),
    Sketcher.Constraint("DistanceX", 4, 2, 4, 1, 2.5),
    Sketcher.Constraint("DistanceY", 0, 2, 0, 1, 2.7),
    Sketcher.Constraint("DistanceX", 1, 2, -1, 1, 26.0),
    Sketcher.Constraint("DistanceX", 13, 2, -1, 1, 9.0),
    Sketcher.Constraint("DistanceX", 5, 3, 9, 3, 30.0),
    Sketcher.Constraint("DistanceX", 15, 3, 10, 2, 4.0),
    Sketcher.Constraint("DistanceY", -1, 1, 3, 3, 47.8),
    Sketcher.Constraint("DistanceY", -1, 1, 5, 3, 24.5),
])
pocket2 = body.newObject("PartDesign::Pocket", "Pocket001")
pocket2.Profile = sketch5
pocket2.Length = 1.5

# Sketch on XZ plane
sketch6 = body.newObject("Sketcher::SketchObject", "Sketch005")
sketch6.AttachmentSupport = (doc.getObject("XZ_Plane"), [""])
sketch6.MapMode = "FlatFace"
sketch6.AttachmentOffset = App.Placement(V(0, 0, -3.175), App.Rotation())
sketch6.addGeometry([
    Part.Circle(V(-31.3, -6.33, 0), V(0, 0, 1), 3.225),
    Part.Circle(V(31.3, -6.33, 0), V(0, 0, 1), 3.225),
    Part.Circle(V(31.3, 6.33, 0), V(0, 0, 1), 3.225),
], False)
sketch6.addConstraint([
    Sketcher.Constraint("Equal", 0, 1),
    Sketcher.Constraint("Equal", 1, 2),
    Sketcher.Constraint("Symmetric", 0, 3, 2, 3, -1, 1),
    Sketcher.Constraint("Symmetric", 0, 3, 1, 3, -2),
    Sketcher.Constraint("Diameter", 0, 6.45),
    Sketcher.Constraint("DistanceX", 0, 3, -1, 1, 31.3),
    Sketcher.Constraint("DistanceY", 0, 3, -1, 1, 6.33),
])
pocket3 = body.newObject("PartDesign::Pocket", "Pocket002")
pocket3.Profile = sketch6
pocket3.Length = 3.175
pocket3.Reversed = True

doc.recompute()
